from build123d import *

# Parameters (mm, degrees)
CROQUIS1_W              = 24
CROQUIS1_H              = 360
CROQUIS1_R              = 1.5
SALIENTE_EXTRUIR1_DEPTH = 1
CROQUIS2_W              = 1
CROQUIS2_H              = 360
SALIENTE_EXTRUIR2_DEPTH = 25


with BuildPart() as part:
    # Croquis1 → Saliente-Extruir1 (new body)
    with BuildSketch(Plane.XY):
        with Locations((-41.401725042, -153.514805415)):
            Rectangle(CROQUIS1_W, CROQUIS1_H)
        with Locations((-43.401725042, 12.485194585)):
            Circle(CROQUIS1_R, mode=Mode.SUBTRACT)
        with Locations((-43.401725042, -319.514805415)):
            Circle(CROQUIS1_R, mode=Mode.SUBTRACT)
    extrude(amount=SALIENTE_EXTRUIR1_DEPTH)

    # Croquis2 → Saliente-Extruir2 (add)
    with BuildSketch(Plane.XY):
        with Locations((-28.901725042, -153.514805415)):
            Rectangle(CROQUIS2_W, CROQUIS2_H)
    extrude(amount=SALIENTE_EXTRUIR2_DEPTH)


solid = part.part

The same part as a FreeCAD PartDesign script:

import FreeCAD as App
import Part
import Sketcher
from FreeCAD import Vector

doc = App.newDocument("Part")
body = doc.addObject("PartDesign::Body", "Body")

# Sketch on XY plane
sketch1 = body.newObject("Sketcher::SketchObject", "Sketch")
sketch1.AttachmentSupport = (doc.getObject("XY_Plane"), [""])
sketch1.MapMode = "FlatFace"
sketch1.addGeometry([
    Part.LineSegment(Vector(-53.4, 26.5, 0), Vector(-53.4, -333.5, 0)),  # 0
    Part.LineSegment(Vector(-53.4, -333.5, 0), Vector(-29.4, -333.5, 0)),  # 1
    Part.LineSegment(Vector(-29.4, -333.5, 0), Vector(-29.4, 26.5, 0)),  # 2
    Part.LineSegment(Vector(-29.4, 26.5, 0), Vector(-53.4, 26.5, 0)),  # 3
    Part.Circle(Vector(-43.4, -319.5, 0), Vector(0, 0, 1), 1.5),  # 4
    Part.Circle(Vector(-43.4, 12.5, 0), Vector(0, 0, 1), 1.5),  # 5
], False)
sketch1.addConstraint([
    Sketcher.Constraint("Coincident", 0, 2, 1, 1),
    Sketcher.Constraint("Coincident", 1, 2, 2, 1),
    Sketcher.Constraint("Coincident", 2, 2, 3, 1),
    Sketcher.Constraint("Coincident", 3, 2, 0, 1),
    Sketcher.Constraint("Vertical", 0),
    Sketcher.Constraint("Horizontal", 1),
    Sketcher.Constraint("Vertical", 2),
    Sketcher.Constraint("Horizontal", 3),
    Sketcher.Constraint("Equal", 4, 5),
    Sketcher.Constraint("Vertical", 4, 3, 5, 3),
    Sketcher.Constraint("Diameter", 4, 3.0),
    Sketcher.Constraint("DistanceX", 1, 1, 1, 2, 24.0),
    Sketcher.Constraint("DistanceY", 0, 2, 0, 1, 360.0),
    Sketcher.Constraint("DistanceY", 4, 3, 5, 3, 332.0),
    Sketcher.Constraint("DistanceX", 0, 2, 4, 3, 10.0),
    Sketcher.Constraint("DistanceY", 0, 2, 4, 3, 14.0),
    Sketcher.Constraint("DistanceX", 4, 3, -1, 1, 43.401725),
    Sketcher.Constraint("DistanceY", 4, 3, -1, 1, 319.514805),
])
pad1 = body.newObject("PartDesign::Pad", "Pad")
pad1.Profile = sketch1
pad1.Length = 1

# Sketch on XY plane
sketch2 = body.newObject("Sketcher::SketchObject", "Sketch001")
sketch2.AttachmentSupport = (doc.getObject("XY_Plane"), [""])
sketch2.MapMode = "FlatFace"
sketch2.addGeometry([
    Part.LineSegment(Vector(-29.4, 26.5, 0), Vector(-29.4, -333.5, 0)),
    Part.LineSegment(Vector(-29.4, -333.5, 0), Vector(-28.4, -333.5, 0)),
    Part.LineSegment(Vector(-28.4, -333.5, 0), Vector(-28.4, 26.5, 0)),
    Part.LineSegment(Vector(-28.4, 26.5, 0), Vector(-29.4, 26.5, 0)),
], False)
sketch2.addConstraint([
    Sketcher.Constraint("Coincident", 0, 2, 1, 1),
    Sketcher.Constraint("Coincident", 1, 2, 2, 1),
    Sketcher.Constraint("Coincident", 2, 2, 3, 1),
    Sketcher.Constraint("Coincident", 3, 2, 0, 1),
    Sketcher.Constraint("Vertical", 0),
    Sketcher.Constraint("Horizontal", 1),
    Sketcher.Constraint("Vertical", 2),
    Sketcher.Constraint("Horizontal", 3),
    Sketcher.Constraint("DistanceX", 1, 1, 1, 2, 1.0),
    Sketcher.Constraint("DistanceY", 0, 2, 0, 1, 360.0),
    Sketcher.Constraint("DistanceX", 0, 2, -1, 1, 29.401725),
    Sketcher.Constraint("DistanceY", 0, 2, -1, 1, 333.514805),
])
pad2 = body.newObject("PartDesign::Pad", "Pad001")
pad2.Profile = sketch2
pad2.Length = 25

doc.recompute()
